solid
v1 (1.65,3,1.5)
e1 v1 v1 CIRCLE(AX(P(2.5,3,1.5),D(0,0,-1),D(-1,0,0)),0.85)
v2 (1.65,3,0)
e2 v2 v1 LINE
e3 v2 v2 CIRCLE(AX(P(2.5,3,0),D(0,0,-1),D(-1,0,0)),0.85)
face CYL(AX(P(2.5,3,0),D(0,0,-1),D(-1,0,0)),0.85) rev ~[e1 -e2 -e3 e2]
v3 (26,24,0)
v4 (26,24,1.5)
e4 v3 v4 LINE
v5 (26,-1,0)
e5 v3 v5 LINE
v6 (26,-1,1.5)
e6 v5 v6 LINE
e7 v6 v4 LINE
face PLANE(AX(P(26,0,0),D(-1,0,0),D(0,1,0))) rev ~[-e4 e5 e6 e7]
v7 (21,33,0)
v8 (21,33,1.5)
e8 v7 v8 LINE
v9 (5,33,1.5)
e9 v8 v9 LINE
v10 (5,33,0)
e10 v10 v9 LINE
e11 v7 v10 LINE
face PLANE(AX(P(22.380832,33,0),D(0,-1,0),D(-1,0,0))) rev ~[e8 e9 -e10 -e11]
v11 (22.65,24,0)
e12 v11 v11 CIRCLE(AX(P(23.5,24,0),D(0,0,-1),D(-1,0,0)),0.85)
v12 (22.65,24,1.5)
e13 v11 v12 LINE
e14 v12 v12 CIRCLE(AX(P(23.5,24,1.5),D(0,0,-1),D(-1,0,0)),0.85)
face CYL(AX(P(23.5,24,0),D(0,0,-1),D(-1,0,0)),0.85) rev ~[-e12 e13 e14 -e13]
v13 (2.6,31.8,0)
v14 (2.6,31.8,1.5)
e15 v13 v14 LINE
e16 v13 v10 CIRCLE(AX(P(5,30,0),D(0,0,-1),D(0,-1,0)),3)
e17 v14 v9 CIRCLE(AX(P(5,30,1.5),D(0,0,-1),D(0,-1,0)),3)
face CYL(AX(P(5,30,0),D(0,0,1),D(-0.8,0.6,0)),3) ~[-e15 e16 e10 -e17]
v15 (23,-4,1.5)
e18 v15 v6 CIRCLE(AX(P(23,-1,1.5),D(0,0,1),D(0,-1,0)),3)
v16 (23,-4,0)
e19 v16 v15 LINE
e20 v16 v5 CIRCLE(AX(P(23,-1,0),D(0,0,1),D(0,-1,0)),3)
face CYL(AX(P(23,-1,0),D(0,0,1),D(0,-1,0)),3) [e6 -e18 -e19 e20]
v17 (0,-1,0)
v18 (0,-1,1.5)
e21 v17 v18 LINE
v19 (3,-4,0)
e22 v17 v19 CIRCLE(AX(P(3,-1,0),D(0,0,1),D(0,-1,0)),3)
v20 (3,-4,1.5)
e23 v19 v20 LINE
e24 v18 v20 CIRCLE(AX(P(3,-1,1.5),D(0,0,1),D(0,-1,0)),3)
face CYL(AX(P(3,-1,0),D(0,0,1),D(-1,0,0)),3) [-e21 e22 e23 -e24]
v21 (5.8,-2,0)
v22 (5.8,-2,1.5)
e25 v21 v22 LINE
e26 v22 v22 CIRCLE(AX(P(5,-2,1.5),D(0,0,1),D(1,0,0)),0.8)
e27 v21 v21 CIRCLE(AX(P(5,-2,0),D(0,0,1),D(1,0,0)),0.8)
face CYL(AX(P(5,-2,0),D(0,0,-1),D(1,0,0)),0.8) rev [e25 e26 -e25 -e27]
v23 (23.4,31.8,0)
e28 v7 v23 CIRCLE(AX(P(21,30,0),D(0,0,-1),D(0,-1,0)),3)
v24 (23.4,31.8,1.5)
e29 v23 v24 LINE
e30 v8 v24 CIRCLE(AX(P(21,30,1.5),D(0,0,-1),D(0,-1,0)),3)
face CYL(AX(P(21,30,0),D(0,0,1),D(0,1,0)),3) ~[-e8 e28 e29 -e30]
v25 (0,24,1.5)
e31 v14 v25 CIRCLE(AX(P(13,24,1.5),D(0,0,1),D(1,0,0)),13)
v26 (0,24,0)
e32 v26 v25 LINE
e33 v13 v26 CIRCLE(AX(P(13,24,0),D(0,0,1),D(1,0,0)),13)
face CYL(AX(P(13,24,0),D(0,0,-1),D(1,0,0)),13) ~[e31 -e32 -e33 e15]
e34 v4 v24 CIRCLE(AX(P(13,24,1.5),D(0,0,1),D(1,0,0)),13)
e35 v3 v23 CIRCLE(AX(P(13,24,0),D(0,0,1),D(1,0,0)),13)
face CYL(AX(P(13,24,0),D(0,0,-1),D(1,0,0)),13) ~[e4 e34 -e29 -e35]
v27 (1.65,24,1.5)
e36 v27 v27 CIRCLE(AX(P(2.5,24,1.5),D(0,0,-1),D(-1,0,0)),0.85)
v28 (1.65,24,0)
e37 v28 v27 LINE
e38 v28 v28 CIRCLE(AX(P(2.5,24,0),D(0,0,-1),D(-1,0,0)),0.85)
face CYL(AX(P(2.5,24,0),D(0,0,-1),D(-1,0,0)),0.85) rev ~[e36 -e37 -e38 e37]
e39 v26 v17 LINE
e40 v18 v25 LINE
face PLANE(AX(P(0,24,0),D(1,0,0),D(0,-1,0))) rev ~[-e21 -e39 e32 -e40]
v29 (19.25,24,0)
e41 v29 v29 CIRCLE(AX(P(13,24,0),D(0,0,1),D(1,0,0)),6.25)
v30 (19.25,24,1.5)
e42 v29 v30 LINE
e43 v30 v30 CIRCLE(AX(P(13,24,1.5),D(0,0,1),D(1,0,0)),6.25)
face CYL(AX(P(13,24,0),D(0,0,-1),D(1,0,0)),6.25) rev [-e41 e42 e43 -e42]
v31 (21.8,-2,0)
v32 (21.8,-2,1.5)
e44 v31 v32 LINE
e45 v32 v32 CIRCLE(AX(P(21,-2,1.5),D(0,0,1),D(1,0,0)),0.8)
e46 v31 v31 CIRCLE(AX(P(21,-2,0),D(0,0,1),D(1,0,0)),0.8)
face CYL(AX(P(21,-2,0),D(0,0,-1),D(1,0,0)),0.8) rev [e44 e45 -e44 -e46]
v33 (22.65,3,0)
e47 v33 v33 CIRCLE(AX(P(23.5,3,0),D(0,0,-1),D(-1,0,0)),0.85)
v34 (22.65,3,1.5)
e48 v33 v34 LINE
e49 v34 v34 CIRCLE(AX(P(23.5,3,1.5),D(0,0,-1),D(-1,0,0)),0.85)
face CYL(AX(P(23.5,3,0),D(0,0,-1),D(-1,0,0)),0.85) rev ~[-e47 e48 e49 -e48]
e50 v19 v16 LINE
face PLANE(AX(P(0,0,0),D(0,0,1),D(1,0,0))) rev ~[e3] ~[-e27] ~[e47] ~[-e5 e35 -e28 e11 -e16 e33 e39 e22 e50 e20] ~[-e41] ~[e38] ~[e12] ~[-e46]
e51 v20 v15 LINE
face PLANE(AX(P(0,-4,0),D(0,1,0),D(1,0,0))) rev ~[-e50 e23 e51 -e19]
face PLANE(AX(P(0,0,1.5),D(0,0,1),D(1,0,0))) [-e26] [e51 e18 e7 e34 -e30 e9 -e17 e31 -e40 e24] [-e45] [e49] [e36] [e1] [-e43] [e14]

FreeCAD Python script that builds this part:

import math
import FreeCAD as App
import Part
import Sketcher
from FreeCAD import Vector


def edges_at(feature, points):
    """Names of the edges that pass closest to the given points."""
    edges = feature.Shape.Edges
    near = lambda p: min(range(len(edges)), key=lambda i: edges[i].distToShape(Part.Vertex(*p))[0])
    return sorted({f"Edge{near(p) + 1}" for p in points})

doc = App.newDocument("Part")
params = doc.addObject("Spreadsheet::Sheet", "Params")
for row, (alias, value) in enumerate([
    ("sketch1_radius", "13 mm"),
    ("sketch1_diameter", "12.5 mm"),
    ("sketch1_diameter2", "1.6 mm"),
    ("pad1_length", "1.5 mm"),
    ("sketch2_diameter", "1.7 mm"),
    ("fillet_radius", "3 mm"),
], start=1):
    params.set(f"A{row}", alias)
    params.set(f"B{row}", "=" + value)
    params.setAlias(f"B{row}", alias)

body = doc.addObject("PartDesign::Body", "Body")

# Sketch on XY plane
sketch1 = body.newObject("Sketcher::SketchObject", "Sketch")
sketch1.AttachmentSupport = (doc.getObject("XY_Plane"), [""])
sketch1.MapMode = "FlatFace"
sketch1.addGeometry(Part.LineSegment(Vector(0, 24, 0), Vector(0, -4, 0)), False)
sketch1.addGeometry(Part.LineSegment(Vector(0, -4, 0), Vector(26, -4, 0)), False)
sketch1.addGeometry(Part.LineSegment(Vector(26, -4, 0), Vector(26, 24, 0)), False)
sketch1.addGeometry(Part.ArcOfCircle(Part.Circle(Vector(13, 24, 0), Vector(0, 0, 1), 13), math.radians(0), math.radians(43.813061)), False)
sketch1.addGeometry(Part.LineSegment(Vector(22.380832, 33, 0), Vector(3.619168, 33, 0)), False)
sketch1.addGeometry(Part.ArcOfCircle(Part.Circle(Vector(13, 24, 0), Vector(0, 0, 1), 13), math.radians(136.186939), math.radians(180)), False)
sketch1.addGeometry(Part.Circle(Vector(13, 24, 0), Vector(0, 0, 1), 6.25), False)
sketch1.addGeometry(Part.Circle(Vector(21, -2, 0), Vector(0, 0, 1), 0.8), False)
sketch1.addGeometry(Part.Circle(Vector(5, -2, 0), Vector(0, 0, 1), 0.8), False)
sketch1.addConstraint(Sketcher.Constraint("Coincident", 0, 2, 1, 1))
sketch1.addConstraint(Sketcher.Constraint("Coincident", 1, 2, 2, 1))
sketch1.addConstraint(Sketcher.Constraint("Tangent", 2, 2, 3, 1))
sketch1.addConstraint(Sketcher.Constraint("Coincident", 3, 2, 4, 1))
sketch1.addConstraint(Sketcher.Constraint("Coincident", 4, 2, 5, 1))
sketch1.addConstraint(Sketcher.Constraint("Tangent", 5, 2, 0, 1))
sketch1.addConstraint(Sketcher.Constraint("Vertical", 0))
sketch1.addConstraint(Sketcher.Constraint("Horizontal", 1))
sketch1.addConstraint(Sketcher.Constraint("Vertical", 2))
sketch1.addConstraint(Sketcher.Constraint("Horizontal", 4))
sketch1.addConstraint(Sketcher.Constraint("Coincident", 5, 3, 3, 3))
sketch1.addConstraint(Sketcher.Constraint("Coincident", 6, 3, 3, 3))
sketch1.addConstraint(Sketcher.Constraint("Equal", 3, 5))
sketch1.addConstraint(Sketcher.Constraint("Equal", 7, 8))
sketch1.addConstraint(Sketcher.Constraint("PointOnObject", 0, 2, -2))
sketch1.addConstraint(Sketcher.Constraint("Horizontal", 7, 3, 8, 3))
sketch1.addConstraint(Sketcher.Constraint("Radius", 3, 13.0))
sketch1.addConstraint(Sketcher.Constraint("Diameter", 6, 12.5))
sketch1.addConstraint(Sketcher.Constraint("Diameter", 7, 1.6))
sketch1.addConstraint(Sketcher.Constraint("DistanceY", -1, 1, 3, 3, 24.0))
sketch1.addConstraint(Sketcher.Constraint("DistanceX", -1, 1, 8, 3, 5.0))
sketch1.addConstraint(Sketcher.Constraint("DistanceY", 0, 2, -1, 1, 4.0))
sketch1.addConstraint(Sketcher.Constraint("DistanceY", -1, 1, 3, 2, 33.0))
sketch1.addConstraint(Sketcher.Constraint("DistanceY", 7, 3, 3, 3, 26.0))
sketch1.addConstraint(Sketcher.Constraint("DistanceX", 7, 3, 1, 2, 5.0))
sketch1.setExpression("Constraints[16]", "Params.sketch1_radius")
sketch1.setExpression("Constraints[17]", "Params.sketch1_diameter")
sketch1.setExpression("Constraints[18]", "Params.sketch1_diameter2")
pad1 = body.newObject("PartDesign::Pad", "Pad")
pad1.Profile = sketch1
pad1.setExpression("Length", "Params.pad1_length")

# Sketch on XY plane
sketch2 = body.newObject("Sketcher::SketchObject", "Sketch001")
sketch2.AttachmentSupport = (doc.getObject("XY_Plane"), [""])
sketch2.MapMode = "FlatFace"
sketch2.addGeometry(Part.Circle(Vector(2.5, 24, 0), Vector(0, 0, 1), 0.85), False)
sketch2.addGeometry(Part.Circle(Vector(23.5, 24, 0), Vector(0, 0, 1), 0.85), False)
sketch2.addGeometry(Part.Circle(Vector(23.5, 3, 0), Vector(0, 0, 1), 0.85), False)
sketch2.addGeometry(Part.Circle(Vector(2.5, 3, 0), Vector(0, 0, 1), 0.85), False)
sketch2.addConstraint(Sketcher.Constraint("Equal", 0, 1))
sketch2.addConstraint(Sketcher.Constraint("Equal", 1, 2))
sketch2.addConstraint(Sketcher.Constraint("Equal", 2, 3))
sketch2.addConstraint(Sketcher.Constraint("Horizontal", 0, 3, 1, 3))
sketch2.addConstraint(Sketcher.Constraint("Horizontal", 2, 3, 3, 3))
sketch2.addConstraint(Sketcher.Constraint("Vertical", 1, 3, 2, 3))
sketch2.addConstraint(Sketcher.Constraint("Vertical", 0, 3, 3, 3))
sketch2.addConstraint(Sketcher.Constraint("Diameter", 0, 1.7))
sketch2.addConstraint(Sketcher.Constraint("DistanceY", -1, 1, 0, 3, 24.0))
sketch2.addConstraint(Sketcher.Constraint("DistanceY", -1, 1, 2, 3, 3.0))
sketch2.addConstraint(Sketcher.Constraint("DistanceX", 0, 3, 1, 3, 21.0))
sketch2.addConstraint(Sketcher.Constraint("DistanceX", -1, 1, 0, 3, 2.5))
sketch2.setExpression("Constraints[7]", "Params.sketch2_diameter")
pocket1 = body.newObject("PartDesign::Pocket", "Pocket")
pocket1.Profile = sketch2
pocket1.Type = "ThroughAll"
pocket1.Reversed = True
doc.recompute()

fillet = body.newObject("PartDesign::Fillet", "Fillet")
fillet.Base = (pocket1, edges_at(pocket1, [
    (22.381, 33, 0.75),
    (3.619, 33, 0.75),
    (26, -4, 0.75),
    (0, -4, 0.75),
]))
fillet.setExpression("Radius", "Params.fillet_radius")

doc.recompute()
